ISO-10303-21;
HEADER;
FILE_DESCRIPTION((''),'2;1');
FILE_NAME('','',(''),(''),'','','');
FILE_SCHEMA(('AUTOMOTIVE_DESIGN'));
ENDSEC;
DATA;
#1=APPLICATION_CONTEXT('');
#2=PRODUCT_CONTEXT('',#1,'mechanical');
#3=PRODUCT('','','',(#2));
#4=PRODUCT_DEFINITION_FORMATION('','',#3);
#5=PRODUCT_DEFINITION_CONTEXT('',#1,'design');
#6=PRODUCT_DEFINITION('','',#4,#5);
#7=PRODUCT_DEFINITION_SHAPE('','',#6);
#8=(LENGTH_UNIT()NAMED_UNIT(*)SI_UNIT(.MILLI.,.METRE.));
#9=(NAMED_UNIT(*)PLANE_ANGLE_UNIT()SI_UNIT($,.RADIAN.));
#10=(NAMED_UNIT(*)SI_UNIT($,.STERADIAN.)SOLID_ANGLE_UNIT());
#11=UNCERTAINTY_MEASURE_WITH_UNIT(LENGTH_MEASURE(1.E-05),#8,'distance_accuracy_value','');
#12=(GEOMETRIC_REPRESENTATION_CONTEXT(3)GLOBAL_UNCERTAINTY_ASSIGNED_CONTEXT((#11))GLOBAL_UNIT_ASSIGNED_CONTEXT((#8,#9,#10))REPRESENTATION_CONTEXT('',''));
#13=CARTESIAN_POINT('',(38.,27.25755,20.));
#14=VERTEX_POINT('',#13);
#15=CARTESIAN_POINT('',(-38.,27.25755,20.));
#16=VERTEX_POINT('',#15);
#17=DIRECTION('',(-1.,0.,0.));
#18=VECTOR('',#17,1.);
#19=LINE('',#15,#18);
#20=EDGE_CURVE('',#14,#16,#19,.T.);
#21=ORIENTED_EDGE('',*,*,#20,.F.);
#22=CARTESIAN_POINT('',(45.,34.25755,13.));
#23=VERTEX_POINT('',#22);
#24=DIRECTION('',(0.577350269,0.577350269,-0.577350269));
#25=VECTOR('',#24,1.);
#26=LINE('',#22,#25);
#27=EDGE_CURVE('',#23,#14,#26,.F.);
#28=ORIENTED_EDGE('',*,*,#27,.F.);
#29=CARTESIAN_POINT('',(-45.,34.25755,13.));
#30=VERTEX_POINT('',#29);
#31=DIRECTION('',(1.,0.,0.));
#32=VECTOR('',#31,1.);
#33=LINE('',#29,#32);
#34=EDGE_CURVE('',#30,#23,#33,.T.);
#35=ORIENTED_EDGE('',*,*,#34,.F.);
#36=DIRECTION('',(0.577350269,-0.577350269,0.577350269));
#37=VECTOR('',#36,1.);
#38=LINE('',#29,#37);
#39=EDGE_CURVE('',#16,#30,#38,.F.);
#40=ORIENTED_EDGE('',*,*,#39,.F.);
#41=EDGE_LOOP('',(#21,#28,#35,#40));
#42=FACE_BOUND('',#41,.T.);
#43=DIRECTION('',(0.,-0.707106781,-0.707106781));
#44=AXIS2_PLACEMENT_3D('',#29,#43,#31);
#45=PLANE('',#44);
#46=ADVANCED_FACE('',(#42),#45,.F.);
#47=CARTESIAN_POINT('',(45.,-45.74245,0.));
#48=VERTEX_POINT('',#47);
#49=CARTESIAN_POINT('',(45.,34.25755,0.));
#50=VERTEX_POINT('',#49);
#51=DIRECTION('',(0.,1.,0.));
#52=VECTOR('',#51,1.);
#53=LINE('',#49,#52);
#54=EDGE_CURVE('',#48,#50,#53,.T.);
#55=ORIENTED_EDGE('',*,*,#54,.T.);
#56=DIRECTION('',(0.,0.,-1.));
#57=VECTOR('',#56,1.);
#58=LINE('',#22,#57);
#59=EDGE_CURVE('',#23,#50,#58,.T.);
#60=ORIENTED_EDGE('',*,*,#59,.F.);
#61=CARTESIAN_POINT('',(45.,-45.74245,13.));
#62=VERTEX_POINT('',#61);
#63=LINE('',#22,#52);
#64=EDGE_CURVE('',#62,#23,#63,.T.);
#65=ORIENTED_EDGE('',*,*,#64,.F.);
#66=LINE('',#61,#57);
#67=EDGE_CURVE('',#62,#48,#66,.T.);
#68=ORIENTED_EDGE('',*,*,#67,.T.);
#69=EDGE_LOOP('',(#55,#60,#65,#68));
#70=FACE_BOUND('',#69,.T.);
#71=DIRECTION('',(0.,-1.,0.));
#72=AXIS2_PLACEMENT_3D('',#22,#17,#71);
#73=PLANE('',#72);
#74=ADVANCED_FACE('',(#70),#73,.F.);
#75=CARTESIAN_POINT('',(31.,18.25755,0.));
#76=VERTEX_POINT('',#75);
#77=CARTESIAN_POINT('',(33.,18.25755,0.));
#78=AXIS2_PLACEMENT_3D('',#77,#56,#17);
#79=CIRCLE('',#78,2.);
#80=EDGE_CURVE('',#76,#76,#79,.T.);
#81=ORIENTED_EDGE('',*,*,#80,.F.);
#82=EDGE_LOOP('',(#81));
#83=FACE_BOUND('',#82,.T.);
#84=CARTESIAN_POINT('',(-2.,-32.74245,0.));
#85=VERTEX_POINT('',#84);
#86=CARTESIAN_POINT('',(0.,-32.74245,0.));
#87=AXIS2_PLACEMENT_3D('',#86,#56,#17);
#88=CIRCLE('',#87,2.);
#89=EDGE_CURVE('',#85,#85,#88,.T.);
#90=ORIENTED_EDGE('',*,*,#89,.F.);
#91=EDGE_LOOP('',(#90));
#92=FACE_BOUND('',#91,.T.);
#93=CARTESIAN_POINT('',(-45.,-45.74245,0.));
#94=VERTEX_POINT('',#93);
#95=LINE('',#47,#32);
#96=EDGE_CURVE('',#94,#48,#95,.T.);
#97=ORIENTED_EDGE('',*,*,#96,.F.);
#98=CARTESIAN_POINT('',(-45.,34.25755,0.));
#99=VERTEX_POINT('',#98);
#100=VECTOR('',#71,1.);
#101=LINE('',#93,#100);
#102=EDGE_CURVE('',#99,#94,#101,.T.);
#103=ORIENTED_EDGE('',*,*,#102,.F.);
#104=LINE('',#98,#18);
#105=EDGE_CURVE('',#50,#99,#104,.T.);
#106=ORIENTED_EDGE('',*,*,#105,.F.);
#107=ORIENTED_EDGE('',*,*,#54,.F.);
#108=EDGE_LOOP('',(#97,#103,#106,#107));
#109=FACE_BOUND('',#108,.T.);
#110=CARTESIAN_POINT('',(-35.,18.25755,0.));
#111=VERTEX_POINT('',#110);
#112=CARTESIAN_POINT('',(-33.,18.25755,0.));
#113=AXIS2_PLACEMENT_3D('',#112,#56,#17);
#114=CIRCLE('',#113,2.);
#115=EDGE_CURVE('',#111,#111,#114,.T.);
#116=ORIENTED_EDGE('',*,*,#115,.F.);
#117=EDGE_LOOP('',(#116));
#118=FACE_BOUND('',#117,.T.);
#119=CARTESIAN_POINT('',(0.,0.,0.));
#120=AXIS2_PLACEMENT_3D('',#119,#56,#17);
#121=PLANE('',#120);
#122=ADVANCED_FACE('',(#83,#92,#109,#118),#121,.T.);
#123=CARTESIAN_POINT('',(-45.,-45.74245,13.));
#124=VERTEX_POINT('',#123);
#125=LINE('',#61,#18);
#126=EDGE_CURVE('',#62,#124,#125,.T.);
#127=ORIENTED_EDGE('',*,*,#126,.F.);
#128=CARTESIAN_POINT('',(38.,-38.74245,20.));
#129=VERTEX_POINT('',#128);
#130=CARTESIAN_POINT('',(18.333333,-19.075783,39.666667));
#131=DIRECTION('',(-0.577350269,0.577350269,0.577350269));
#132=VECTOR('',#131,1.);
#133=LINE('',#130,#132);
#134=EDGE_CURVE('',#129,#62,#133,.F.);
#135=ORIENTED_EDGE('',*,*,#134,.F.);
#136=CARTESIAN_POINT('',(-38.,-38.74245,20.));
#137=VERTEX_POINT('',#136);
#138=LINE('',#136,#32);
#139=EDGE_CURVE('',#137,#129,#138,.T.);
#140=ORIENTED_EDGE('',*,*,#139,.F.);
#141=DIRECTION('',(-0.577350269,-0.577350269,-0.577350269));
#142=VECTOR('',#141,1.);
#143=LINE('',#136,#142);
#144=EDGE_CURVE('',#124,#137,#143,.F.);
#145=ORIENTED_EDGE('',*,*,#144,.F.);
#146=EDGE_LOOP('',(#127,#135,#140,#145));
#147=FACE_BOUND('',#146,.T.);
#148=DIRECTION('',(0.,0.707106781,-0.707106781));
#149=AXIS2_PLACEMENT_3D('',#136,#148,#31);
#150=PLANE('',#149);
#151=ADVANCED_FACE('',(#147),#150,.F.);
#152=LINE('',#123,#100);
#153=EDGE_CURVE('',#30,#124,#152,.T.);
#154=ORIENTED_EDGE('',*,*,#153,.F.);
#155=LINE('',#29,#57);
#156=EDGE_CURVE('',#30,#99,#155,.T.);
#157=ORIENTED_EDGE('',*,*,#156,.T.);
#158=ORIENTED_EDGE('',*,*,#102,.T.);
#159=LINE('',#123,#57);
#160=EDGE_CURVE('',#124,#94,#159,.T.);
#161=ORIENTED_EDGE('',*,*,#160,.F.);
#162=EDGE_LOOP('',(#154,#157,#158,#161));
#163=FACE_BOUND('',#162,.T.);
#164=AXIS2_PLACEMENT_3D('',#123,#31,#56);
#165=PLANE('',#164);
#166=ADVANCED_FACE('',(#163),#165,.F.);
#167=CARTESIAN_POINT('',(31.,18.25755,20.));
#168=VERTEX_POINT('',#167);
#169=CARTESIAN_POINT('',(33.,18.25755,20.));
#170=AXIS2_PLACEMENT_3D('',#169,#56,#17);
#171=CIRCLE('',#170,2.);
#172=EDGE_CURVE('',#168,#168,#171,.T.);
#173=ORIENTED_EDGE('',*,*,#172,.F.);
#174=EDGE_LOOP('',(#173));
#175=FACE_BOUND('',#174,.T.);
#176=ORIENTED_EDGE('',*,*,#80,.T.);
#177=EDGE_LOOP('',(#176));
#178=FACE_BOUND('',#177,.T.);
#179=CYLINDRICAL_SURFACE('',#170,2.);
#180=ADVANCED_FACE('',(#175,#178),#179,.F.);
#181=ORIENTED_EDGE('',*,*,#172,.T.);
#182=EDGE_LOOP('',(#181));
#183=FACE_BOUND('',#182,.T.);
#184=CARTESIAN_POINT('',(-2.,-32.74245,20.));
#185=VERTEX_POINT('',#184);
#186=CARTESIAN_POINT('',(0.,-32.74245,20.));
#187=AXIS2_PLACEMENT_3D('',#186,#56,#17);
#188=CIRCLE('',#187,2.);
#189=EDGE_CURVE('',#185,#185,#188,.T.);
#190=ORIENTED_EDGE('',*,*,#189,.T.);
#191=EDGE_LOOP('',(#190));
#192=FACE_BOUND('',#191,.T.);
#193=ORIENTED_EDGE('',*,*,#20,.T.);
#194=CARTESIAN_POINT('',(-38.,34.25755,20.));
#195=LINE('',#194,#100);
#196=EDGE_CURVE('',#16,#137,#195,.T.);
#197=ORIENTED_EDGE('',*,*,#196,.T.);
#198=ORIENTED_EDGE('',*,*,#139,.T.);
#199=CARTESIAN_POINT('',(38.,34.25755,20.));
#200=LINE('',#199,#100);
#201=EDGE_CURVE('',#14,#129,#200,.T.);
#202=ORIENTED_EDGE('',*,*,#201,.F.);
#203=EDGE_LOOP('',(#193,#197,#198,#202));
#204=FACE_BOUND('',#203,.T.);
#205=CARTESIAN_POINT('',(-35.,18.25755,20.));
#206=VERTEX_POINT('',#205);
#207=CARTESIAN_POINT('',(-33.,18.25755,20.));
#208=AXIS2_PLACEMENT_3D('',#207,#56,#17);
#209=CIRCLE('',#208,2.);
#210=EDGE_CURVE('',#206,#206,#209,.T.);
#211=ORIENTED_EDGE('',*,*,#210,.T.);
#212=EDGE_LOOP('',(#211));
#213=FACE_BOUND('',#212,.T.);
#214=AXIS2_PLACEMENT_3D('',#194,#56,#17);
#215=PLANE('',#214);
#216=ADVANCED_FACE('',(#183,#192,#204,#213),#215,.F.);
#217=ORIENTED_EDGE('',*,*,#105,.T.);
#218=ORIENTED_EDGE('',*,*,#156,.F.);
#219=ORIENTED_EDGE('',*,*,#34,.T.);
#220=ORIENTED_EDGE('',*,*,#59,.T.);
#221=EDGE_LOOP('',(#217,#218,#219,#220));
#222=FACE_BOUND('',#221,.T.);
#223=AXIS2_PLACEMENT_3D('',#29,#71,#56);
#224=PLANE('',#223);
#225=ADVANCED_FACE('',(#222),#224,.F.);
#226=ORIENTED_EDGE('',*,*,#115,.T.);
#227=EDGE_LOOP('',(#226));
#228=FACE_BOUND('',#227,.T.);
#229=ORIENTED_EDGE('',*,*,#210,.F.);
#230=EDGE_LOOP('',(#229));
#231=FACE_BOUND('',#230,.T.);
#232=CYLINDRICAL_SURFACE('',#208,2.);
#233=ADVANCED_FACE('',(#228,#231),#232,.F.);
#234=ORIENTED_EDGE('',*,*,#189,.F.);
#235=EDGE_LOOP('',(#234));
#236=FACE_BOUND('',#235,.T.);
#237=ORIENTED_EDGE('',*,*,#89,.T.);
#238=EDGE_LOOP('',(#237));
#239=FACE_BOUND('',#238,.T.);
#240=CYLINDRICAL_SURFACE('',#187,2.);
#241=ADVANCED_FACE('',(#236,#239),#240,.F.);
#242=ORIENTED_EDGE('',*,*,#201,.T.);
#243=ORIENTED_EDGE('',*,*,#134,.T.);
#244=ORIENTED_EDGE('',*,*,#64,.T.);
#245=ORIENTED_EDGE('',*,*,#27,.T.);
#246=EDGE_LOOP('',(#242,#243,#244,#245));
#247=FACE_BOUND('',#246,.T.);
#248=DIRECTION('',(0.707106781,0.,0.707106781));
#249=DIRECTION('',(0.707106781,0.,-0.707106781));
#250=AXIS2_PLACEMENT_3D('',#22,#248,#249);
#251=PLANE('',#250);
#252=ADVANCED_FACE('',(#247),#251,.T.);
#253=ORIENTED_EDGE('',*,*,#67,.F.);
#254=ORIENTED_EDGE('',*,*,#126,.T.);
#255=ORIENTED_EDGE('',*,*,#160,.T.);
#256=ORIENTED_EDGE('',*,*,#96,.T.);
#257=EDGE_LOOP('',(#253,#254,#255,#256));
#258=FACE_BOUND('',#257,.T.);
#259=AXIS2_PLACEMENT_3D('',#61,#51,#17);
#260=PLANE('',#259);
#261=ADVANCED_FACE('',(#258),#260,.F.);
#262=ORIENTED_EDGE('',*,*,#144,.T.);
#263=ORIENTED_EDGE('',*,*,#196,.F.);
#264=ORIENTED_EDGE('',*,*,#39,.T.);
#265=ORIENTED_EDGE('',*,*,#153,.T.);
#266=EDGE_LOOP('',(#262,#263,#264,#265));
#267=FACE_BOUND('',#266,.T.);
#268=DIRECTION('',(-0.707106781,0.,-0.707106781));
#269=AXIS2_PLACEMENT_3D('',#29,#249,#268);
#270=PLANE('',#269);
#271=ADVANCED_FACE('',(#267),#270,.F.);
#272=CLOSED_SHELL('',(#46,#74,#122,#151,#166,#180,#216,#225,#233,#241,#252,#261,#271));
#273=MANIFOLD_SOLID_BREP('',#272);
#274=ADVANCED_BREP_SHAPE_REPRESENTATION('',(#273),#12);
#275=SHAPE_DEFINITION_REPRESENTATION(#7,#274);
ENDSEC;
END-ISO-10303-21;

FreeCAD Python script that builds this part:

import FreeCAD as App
import Part
import Sketcher

V = App.Vector
Q = App.Units.Quantity


def edges_at(feature, points):
    """Names of the edges that pass closest to the given points."""
    edges = feature.Shape.Edges
    near = lambda p: min(range(len(edges)), key=lambda i: edges[i].distToShape(Part.Vertex(*p))[0])
    return sorted({f"Edge{near(p) + 1}" for p in points})

doc = App.newDocument("Part")
body = doc.addObject("PartDesign::Body", "Body")

# Sketch on XY plane
sketch1 = body.newObject("Sketcher::SketchObject", "Sketch")
sketch1.AttachmentSupport = (doc.getObject("XY_Plane"), [""])
sketch1.MapMode = "FlatFace"
sketch1.addGeometry([
    Part.LineSegment(V(-45, 34, 0), V(-45, -46, 0)),
    Part.LineSegment(V(-45, -46, 0), V(45, -46, 0)),
    Part.LineSegment(V(45, -46, 0), V(45, 34, 0)),
    Part.LineSegment(V(45, 34, 0), V(-45, 34, 0)),
], False)
sketch1.addConstraint([
    Sketcher.Constraint("Coincident", 0, 2, 1, 1),
    Sketcher.Constraint("Coincident", 1, 2, 2, 1),
    Sketcher.Constraint("Coincident", 2, 2, 3, 1),
    Sketcher.Constraint("Coincident", 3, 2, 0, 1),
    Sketcher.Constraint("Vertical", 0),
    Sketcher.Constraint("Horizontal", 1),
    Sketcher.Constraint("Vertical", 2),
    Sketcher.Constraint("Horizontal", 3),
    Sketcher.Constraint("DistanceX", 1, 1, 1, 2, Q("90 mm")),
    Sketcher.Constraint("DistanceY", 0, 2, 0, 1, Q("80 mm")),
    Sketcher.Constraint("DistanceX", 0, 2, -1, 1, Q("45 mm")),
    Sketcher.Constraint("DistanceY", 0, 2, -1, 1, Q("45.74245 mm")),
])
pad1 = body.newObject("PartDesign::Pad", "Pad")
pad1.Profile = sketch1
pad1.Length = 13

# Sketch on XZ plane
sketch2 = body.newObject("Sketcher::SketchObject", "Sketch001")
sketch2.AttachmentSupport = (doc.getObject("XZ_Plane"), [""])
sketch2.MapMode = "FlatFace"
sketch2.AttachmentOffset = App.Placement(V(0, 0, 45.74245), App.Rotation())
sketch2.addGeometry([
    Part.LineSegment(V(-38, 20, 0), V(-45, 13, 0)),  # 0
    Part.LineSegment(V(-45, 13, 0), V(-45, 0, 0)),  # 1
    Part.LineSegment(V(-45, 0, 0), V(45, 0, 0)),  # 2
    Part.LineSegment(V(45, 0, 0), V(45, 13, 0)),  # 3
    Part.LineSegment(V(45, 13, 0), V(38, 20, 0)),  # 4
    Part.LineSegment(V(38, 20, 0), V(-38, 20, 0)),  # 5
], False)
sketch2.addConstraint([
    Sketcher.Constraint("Coincident", 0, 2, 1, 1),
    Sketcher.Constraint("Coincident", 1, 2, 2, 1),
    Sketcher.Constraint("Coincident", 2, 2, 3, 1),
    Sketcher.Constraint("Coincident", 3, 2, 4, 1),
    Sketcher.Constraint("Coincident", 4, 2, 5, 1),
    Sketcher.Constraint("Coincident", 5, 2, 0, 1),
    Sketcher.Constraint("Vertical", 1),
    Sketcher.Constraint("Horizontal", 2),
    Sketcher.Constraint("Vertical", 3),
    Sketcher.Constraint("Horizontal", 5),
    Sketcher.Constraint("Symmetric", 1, 2, 2, 2, -1, 1),
    Sketcher.Constraint("Perpendicular", 0, 4),
    Sketcher.Constraint("Horizontal", 0, 2, 3, 2),
    Sketcher.Constraint("Equal", 0, 4),
    Sketcher.Constraint("DistanceX", 2, 1, 2, 2, Q("90 mm")),
    Sketcher.Constraint("DistanceX", 5, 2, 5, 1, Q("76 mm")),
    Sketcher.Constraint("DistanceY", 1, 2, 1, 1, Q("13 mm")),
])
pad2 = body.newObject("PartDesign::Pad", "Pad001")
pad2.Profile = sketch2
pad2.Type = "UpToLast"
pad2.Reversed = True
doc.recompute()

chamfer = body.newObject("PartDesign::Chamfer", "Chamfer")
chamfer.Base = (pad2, edges_at(pad2, [(0, -45.742, 20), (0, 34.258, 20)]))
chamfer.Size = 7

# Sketch on XY plane
sketch3 = body.newObject("Sketcher::SketchObject", "Sketch002")
sketch3.AttachmentSupport = (doc.getObject("XY_Plane"), [""])
sketch3.MapMode = "FlatFace"
sketch3.addGeometry(Part.Circle(V(0, -32.7, 0), V(0, 0, 1), 2), False)
sketch3.addConstraint([
    Sketcher.Constraint("PointOnObject", 0, 3, -2),
    Sketcher.Constraint("Diameter", 0, Q("4 mm")),
    Sketcher.Constraint("DistanceY", 0, 3, -1, 1, Q("32.74245 mm")),
])
pocket1 = body.newObject("PartDesign::Pocket", "Pocket")
pocket1.Profile = sketch3
pocket1.Length = 20
pocket1.Reversed = True

# Sketch on XY plane
sketch4 = body.newObject("Sketcher::SketchObject", "Sketch003")
sketch4.AttachmentSupport = (doc.getObject("XY_Plane"), [""])
sketch4.MapMode = "FlatFace"
sketch4.addGeometry([
    Part.Circle(V(33, 18.3, 0), V(0, 0, 1), 2),
    Part.Circle(V(-33, 18.3, 0), V(0, 0, 1), 2),
], False)
sketch4.addConstraint([
    Sketcher.Constraint("Equal", 0, 1),
    Sketcher.Constraint("Symmetric", 0, 3, 1, 3, -2),
    Sketcher.Constraint("Diameter", 0, Q("4 mm")),
    Sketcher.Constraint("DistanceX", -1, 1, 0, 3, Q("33 mm")),
    Sketcher.Constraint("DistanceY", -1, 1, 0, 3, Q("18.25755 mm")),
])
pocket2 = body.newObject("PartDesign::Pocket", "Pocket001")
pocket2.Profile = sketch4
pocket2.Length = 20
pocket2.Reversed = True

doc.recompute()
